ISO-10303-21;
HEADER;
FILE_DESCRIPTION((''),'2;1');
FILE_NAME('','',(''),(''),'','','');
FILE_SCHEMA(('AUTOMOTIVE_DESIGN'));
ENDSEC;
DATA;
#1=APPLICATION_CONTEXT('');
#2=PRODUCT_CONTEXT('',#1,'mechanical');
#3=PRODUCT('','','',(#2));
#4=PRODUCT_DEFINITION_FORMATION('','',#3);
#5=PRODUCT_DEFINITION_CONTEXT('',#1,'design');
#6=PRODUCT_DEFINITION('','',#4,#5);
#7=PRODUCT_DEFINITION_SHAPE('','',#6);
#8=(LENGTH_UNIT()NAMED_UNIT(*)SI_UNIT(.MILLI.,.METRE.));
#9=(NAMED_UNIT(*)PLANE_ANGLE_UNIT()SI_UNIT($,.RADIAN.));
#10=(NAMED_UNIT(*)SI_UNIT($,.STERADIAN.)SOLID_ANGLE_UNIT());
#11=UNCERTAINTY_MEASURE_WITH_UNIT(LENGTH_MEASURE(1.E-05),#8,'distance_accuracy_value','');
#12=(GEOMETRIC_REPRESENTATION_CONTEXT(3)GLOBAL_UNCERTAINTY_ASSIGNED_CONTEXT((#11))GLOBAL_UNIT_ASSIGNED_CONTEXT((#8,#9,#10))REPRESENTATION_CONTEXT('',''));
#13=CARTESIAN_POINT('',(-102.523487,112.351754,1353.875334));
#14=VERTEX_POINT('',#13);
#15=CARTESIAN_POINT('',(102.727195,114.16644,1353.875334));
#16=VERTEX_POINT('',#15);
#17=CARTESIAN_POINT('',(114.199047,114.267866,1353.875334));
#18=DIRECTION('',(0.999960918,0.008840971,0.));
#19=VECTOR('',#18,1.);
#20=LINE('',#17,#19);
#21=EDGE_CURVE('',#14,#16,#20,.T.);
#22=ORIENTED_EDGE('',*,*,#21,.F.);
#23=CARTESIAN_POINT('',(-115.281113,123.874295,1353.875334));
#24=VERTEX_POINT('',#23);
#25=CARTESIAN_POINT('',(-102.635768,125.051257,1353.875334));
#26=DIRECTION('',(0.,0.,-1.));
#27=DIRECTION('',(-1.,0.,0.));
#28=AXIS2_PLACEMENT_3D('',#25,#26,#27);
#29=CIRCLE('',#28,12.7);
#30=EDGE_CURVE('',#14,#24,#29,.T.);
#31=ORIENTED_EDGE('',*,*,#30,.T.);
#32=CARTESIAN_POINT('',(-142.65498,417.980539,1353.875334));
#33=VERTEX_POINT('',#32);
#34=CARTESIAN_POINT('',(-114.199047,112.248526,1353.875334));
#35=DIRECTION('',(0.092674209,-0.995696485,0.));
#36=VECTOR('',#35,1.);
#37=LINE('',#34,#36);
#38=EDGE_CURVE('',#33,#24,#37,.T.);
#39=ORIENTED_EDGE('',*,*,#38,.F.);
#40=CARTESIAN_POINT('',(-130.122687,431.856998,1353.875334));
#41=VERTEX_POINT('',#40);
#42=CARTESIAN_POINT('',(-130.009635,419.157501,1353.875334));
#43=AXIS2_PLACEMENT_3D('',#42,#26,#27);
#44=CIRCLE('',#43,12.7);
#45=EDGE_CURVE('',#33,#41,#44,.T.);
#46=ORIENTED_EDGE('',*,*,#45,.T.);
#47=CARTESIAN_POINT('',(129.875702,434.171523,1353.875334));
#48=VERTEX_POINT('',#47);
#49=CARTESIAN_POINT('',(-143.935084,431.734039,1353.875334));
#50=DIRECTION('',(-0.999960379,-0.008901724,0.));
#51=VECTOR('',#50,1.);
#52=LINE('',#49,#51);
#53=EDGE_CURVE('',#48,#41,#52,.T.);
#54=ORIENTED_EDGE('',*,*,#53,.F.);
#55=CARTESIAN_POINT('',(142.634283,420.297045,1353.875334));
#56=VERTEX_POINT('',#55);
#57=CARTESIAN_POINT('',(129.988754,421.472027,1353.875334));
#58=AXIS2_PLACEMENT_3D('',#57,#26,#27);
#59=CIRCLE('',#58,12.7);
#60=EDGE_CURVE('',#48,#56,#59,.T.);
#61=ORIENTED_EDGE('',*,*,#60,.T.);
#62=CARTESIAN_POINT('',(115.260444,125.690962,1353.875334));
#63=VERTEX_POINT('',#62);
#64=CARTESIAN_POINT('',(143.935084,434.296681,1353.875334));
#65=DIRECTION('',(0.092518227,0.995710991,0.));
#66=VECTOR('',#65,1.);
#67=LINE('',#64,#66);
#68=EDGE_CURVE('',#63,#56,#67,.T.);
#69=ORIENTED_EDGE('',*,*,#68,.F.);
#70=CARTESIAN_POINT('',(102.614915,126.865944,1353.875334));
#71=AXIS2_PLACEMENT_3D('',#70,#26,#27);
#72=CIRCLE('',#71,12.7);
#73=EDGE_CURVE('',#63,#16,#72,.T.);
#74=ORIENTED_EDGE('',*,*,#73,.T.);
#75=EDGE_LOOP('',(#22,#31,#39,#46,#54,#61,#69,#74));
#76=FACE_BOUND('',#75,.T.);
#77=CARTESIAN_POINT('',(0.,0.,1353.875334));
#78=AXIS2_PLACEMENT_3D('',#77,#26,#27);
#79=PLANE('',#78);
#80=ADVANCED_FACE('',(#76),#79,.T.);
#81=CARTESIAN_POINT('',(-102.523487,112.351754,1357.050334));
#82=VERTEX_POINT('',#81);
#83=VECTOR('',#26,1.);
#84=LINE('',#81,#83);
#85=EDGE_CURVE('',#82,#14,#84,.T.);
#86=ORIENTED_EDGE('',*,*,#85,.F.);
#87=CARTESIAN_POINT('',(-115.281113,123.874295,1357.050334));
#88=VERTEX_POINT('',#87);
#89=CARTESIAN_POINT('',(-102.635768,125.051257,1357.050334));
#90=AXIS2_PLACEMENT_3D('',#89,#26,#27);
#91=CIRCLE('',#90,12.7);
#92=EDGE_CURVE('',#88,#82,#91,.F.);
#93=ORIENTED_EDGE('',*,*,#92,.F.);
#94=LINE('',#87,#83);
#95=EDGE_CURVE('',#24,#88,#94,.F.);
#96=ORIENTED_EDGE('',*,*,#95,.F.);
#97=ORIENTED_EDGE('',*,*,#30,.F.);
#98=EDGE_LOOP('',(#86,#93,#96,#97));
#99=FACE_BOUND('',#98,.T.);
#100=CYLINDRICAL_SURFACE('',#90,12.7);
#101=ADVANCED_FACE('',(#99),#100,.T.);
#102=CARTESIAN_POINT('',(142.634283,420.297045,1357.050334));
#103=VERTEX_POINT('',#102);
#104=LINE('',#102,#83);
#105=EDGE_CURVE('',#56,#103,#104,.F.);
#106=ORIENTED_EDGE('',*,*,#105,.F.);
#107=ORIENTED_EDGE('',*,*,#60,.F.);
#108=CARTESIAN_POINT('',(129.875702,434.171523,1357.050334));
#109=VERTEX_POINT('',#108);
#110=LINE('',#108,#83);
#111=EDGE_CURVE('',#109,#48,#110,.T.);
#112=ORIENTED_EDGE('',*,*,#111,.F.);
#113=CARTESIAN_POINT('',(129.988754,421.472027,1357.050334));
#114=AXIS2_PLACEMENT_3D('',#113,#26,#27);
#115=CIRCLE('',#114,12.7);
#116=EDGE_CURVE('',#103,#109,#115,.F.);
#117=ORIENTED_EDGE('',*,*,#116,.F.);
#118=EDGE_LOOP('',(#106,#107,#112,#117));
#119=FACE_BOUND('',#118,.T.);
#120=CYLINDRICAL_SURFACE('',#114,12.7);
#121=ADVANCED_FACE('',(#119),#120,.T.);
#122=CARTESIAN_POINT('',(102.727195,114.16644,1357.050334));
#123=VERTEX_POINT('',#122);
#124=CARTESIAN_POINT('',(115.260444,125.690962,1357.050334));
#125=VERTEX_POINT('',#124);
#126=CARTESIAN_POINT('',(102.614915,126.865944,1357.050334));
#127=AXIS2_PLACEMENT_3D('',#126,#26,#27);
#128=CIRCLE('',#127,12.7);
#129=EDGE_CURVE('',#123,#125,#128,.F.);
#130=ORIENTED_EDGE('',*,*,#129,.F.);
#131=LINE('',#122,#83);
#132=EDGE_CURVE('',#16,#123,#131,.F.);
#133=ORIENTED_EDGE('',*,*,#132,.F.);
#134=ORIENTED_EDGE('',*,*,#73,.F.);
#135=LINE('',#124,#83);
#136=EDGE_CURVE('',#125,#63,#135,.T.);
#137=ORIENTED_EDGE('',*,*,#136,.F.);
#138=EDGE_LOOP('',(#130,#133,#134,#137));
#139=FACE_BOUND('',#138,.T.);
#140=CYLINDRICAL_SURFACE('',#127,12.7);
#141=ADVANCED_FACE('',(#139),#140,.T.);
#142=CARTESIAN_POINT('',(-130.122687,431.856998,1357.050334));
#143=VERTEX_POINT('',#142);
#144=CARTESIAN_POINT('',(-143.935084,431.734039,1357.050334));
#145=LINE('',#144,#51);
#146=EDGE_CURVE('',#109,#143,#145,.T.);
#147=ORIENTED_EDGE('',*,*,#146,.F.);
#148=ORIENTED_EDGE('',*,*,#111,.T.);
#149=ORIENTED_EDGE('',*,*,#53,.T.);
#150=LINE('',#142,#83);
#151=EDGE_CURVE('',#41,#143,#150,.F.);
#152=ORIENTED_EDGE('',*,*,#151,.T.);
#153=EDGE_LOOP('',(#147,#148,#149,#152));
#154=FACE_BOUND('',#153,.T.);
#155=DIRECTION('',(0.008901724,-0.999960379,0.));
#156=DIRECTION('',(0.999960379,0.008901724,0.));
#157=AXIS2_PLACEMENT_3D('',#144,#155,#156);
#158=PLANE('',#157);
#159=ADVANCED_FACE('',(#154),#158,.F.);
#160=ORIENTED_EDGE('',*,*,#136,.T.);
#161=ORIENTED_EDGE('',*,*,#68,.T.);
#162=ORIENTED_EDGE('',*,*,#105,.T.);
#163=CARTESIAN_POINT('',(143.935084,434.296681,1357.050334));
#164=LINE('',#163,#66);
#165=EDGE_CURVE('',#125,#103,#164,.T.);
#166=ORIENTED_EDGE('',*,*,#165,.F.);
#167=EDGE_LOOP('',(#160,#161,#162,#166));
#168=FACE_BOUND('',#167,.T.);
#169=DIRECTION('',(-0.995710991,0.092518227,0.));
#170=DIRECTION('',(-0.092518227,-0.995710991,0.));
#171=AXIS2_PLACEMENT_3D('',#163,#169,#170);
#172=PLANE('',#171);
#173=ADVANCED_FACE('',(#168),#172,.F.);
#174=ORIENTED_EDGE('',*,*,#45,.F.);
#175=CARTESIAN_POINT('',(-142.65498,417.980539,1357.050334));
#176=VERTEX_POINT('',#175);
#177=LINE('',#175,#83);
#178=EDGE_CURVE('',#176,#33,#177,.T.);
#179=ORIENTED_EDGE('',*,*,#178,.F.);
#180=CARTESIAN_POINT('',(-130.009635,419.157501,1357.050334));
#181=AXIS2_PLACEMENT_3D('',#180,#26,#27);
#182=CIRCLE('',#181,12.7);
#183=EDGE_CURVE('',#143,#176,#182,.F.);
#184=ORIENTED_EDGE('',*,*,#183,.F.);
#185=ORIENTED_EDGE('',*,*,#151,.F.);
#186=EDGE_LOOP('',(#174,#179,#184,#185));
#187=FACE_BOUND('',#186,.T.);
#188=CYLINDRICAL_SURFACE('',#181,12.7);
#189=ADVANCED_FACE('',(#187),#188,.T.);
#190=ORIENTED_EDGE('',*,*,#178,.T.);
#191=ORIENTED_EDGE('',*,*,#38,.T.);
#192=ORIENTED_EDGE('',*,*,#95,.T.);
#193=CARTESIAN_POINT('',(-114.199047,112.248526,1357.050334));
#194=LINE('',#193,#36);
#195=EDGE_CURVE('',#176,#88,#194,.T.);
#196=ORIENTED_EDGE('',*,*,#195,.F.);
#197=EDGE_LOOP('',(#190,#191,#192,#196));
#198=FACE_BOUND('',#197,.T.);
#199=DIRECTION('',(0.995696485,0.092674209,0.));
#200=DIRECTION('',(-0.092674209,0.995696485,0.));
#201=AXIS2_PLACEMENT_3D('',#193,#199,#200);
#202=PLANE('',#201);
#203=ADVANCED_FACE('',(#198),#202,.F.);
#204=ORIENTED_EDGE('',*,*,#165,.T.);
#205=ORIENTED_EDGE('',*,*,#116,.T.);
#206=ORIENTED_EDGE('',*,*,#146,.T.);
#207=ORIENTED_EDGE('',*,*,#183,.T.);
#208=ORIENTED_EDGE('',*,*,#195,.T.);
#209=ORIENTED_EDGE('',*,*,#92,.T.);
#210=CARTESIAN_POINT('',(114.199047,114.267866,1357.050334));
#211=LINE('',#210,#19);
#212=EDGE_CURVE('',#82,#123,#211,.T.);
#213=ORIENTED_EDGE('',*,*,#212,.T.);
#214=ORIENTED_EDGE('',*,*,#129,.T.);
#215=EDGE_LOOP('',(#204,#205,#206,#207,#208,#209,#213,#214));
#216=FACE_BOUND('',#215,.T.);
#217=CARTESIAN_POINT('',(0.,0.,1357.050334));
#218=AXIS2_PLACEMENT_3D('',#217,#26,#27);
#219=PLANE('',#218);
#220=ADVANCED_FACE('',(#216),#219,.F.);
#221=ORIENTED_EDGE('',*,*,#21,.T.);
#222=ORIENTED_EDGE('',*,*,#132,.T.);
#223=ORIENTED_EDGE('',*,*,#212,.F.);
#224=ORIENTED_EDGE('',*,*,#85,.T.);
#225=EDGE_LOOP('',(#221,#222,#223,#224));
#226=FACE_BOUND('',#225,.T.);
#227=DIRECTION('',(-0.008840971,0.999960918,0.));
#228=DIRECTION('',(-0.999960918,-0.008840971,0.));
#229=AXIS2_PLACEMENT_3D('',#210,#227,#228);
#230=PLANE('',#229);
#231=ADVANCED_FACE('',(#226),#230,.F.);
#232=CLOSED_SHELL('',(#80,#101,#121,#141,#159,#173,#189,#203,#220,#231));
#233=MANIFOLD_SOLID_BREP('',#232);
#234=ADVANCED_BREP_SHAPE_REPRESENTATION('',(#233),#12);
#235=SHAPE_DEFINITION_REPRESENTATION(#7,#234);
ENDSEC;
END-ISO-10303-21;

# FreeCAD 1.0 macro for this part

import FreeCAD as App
import Part
import Sketcher
Q = App.Units.Quantity


def edges_at(feature, points):
    """Names of the edges that pass closest to the given points."""
    edges = feature.Shape.Edges
    near = lambda p: min(range(len(edges)), key=lambda i: edges[i].distToShape(Part.Vertex(*p))[0])
    return sorted({f"Edge{near(p) + 1}" for p in points})

doc = App.newDocument("Part")
body = doc.addObject("PartDesign::Body", "Body")

sketch1 = body.newObject("Sketcher::SketchObject", "Sketch")
sketch1.AttachmentSupport = (doc.getObject("XY_Plane"), [""])
sketch1.MapMode = "FlatFace"
sketch1.AttachmentOffset = App.Placement(App.Vector(0, 0, 1353.875334), App.Rotation())
sketch1.addGeometry(Part.LineSegment(App.Vector(-144, 432, 0), App.Vector(-114, 112, 0)), False)
sketch1.addGeometry(Part.LineSegment(App.Vector(-114, 112, 0), App.Vector(114, 114, 0)), False)
sketch1.addGeometry(Part.LineSegment(App.Vector(114, 114, 0), App.Vector(144, 434, 0)), False)
sketch1.addGeometry(Part.LineSegment(App.Vector(144, 434, 0), App.Vector(-144, 432, 0)), False)
sketch1.addConstraint(Sketcher.Constraint("Coincident", 0, 2, 1, 1))
sketch1.addConstraint(Sketcher.Constraint("Coincident", 1, 2, 2, 1))
sketch1.addConstraint(Sketcher.Constraint("Coincident", 2, 2, 3, 1))
sketch1.addConstraint(Sketcher.Constraint("Coincident", 3, 2, 0, 1))
sketch1.addConstraint(Sketcher.Constraint("Distance", 1, Q("228.407022 mm")))
sketch1.addConstraint(Sketcher.Constraint("DistanceY", -1, 1, 2, 2, Q("434.296681 mm")))
sketch1.addConstraint(Sketcher.Constraint("DistanceY", -1, 1, 3, 2, Q("431.734039 mm")))
sketch1.addConstraint(Sketcher.Constraint("DistanceY", 0, 2, 1, 2, Q("2.01934 mm")))
sketch1.addConstraint(Sketcher.Constraint("DistanceX", 0, 2, 2, 2, Q("258.134131 mm")))
sketch1.addConstraint(Sketcher.Constraint("DistanceX", 3, 2, 2, 2, Q("287.870168 mm")))
sketch1.addConstraint(Sketcher.Constraint("Distance", 0, Q("320.866365 mm")))
sketch1.addConstraint(Sketcher.Constraint("DistanceX", 0, 2, -1, 1, Q("114.199047 mm")))
pad1 = body.newObject("PartDesign::Pad", "Pad")
pad1.Profile = sketch1
pad1.Length = Q("0.125 in")
doc.recompute()

fillet = body.newObject("PartDesign::Fillet", "Fillet")
fillet.Base = (pad1, edges_at(pad1, [
    (-114.199, 112.249, 1355.463),
    (-143.935, 431.734, 1355.463),
    (143.935, 434.297, 1355.463),
    (114.199, 114.268, 1355.463),
]))
fillet.Radius = Q("0.5 in")

doc.recompute()
